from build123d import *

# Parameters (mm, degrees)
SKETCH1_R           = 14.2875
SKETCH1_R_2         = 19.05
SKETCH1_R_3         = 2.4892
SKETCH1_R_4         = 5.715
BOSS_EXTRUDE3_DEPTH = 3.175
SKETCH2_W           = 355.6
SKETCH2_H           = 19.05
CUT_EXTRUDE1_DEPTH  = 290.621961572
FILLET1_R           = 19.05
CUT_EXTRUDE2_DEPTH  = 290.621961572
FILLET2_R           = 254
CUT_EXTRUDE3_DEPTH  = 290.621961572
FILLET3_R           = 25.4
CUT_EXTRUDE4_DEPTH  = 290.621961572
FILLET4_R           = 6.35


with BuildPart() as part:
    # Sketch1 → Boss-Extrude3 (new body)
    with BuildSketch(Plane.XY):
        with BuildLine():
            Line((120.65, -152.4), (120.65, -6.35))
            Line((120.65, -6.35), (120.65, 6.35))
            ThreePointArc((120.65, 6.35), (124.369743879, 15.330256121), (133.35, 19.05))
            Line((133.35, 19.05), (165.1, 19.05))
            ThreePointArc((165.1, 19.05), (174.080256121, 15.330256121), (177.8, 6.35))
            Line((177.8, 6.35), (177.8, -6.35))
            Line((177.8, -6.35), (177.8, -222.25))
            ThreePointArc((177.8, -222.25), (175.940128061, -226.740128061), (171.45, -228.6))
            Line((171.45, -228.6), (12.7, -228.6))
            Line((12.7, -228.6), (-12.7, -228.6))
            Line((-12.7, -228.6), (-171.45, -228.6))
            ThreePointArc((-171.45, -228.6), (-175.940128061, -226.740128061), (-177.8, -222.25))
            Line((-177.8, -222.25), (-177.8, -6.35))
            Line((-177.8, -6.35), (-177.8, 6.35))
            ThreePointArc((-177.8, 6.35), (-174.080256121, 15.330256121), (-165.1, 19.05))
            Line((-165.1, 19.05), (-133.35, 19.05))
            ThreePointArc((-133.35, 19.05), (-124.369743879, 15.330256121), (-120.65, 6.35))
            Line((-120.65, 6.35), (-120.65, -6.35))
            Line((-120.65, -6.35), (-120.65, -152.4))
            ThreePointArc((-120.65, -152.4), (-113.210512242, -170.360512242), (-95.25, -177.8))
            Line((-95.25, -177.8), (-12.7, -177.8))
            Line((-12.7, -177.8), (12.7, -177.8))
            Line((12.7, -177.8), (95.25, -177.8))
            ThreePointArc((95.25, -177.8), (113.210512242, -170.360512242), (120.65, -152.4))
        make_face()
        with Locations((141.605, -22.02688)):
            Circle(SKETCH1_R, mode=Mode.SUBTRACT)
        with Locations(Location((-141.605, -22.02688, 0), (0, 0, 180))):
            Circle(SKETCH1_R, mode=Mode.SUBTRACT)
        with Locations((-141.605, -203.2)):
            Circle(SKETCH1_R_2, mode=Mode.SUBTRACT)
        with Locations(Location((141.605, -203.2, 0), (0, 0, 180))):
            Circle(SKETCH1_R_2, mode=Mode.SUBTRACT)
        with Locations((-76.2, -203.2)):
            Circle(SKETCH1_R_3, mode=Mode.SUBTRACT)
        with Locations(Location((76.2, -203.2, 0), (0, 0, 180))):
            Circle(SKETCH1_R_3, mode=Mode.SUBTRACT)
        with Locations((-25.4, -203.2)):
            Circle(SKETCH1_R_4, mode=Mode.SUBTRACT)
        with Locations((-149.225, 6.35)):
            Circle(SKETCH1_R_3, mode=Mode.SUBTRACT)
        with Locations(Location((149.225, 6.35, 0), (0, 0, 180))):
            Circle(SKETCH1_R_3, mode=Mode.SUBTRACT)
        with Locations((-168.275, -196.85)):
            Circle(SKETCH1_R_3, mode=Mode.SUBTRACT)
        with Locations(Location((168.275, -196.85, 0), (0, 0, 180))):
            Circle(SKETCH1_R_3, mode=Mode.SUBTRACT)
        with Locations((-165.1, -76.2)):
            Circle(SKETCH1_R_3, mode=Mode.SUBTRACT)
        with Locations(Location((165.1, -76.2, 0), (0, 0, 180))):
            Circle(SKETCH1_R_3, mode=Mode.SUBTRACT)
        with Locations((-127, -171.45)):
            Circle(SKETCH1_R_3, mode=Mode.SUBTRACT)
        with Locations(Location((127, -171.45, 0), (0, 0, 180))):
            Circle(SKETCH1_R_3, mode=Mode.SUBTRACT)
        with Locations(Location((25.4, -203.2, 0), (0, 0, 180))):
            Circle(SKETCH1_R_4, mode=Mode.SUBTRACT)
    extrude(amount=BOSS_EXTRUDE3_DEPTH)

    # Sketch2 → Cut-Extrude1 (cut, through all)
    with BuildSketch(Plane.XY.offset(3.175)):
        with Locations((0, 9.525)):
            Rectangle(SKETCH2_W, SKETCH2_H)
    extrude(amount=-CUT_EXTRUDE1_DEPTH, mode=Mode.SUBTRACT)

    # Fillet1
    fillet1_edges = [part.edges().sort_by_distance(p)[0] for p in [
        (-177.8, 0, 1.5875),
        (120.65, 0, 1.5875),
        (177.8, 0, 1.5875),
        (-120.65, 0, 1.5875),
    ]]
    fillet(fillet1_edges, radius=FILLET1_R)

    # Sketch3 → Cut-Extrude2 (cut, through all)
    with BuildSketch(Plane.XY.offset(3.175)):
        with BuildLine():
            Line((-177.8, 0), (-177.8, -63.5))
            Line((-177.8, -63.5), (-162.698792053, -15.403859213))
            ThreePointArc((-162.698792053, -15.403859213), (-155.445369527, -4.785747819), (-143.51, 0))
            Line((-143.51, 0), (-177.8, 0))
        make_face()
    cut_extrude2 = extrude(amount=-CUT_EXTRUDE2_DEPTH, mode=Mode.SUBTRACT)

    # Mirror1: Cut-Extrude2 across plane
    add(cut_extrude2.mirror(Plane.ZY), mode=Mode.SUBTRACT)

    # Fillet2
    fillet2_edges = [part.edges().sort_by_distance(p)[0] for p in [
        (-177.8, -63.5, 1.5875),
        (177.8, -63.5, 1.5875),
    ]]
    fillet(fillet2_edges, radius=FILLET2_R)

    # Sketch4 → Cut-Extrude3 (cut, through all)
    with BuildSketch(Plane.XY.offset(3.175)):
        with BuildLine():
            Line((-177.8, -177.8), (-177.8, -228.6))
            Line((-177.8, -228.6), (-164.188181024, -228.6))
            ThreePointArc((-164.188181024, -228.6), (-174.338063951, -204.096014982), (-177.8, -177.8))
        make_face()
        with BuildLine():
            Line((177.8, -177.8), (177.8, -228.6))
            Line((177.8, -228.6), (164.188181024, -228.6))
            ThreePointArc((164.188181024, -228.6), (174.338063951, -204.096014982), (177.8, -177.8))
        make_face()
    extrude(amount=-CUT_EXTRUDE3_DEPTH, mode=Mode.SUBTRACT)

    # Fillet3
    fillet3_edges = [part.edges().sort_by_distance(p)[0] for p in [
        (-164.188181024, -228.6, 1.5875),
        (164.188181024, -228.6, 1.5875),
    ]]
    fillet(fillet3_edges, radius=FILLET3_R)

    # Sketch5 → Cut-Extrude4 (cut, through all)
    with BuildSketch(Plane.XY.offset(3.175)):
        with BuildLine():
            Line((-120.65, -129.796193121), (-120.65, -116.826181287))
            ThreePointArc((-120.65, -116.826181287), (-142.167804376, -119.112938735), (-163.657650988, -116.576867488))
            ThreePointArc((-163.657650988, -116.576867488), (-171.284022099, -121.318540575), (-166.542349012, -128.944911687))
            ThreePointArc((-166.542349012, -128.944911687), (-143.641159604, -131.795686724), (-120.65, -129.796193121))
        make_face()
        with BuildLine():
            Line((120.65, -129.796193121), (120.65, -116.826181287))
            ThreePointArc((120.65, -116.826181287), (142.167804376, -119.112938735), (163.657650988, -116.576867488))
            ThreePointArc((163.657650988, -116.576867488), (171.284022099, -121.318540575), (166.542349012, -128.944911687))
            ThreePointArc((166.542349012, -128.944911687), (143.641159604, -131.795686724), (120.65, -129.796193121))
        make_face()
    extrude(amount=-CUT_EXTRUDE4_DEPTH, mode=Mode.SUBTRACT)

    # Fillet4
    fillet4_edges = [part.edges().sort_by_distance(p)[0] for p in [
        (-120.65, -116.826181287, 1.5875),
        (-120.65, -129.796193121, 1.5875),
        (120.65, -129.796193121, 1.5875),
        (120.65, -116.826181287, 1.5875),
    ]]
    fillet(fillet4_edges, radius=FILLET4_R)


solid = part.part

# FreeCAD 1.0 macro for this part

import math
import FreeCAD as App
import Part
import Sketcher
Q = App.Units.Quantity


def edges_at(feature, points):
    """Names of the edges that pass closest to the given points."""
    edges = feature.Shape.Edges
    near = lambda p: min(range(len(edges)), key=lambda i: edges[i].distToShape(Part.Vertex(*p))[0])
    return sorted({f"Edge{near(p) + 1}" for p in points})


def add_polygon(sketch, points):
    """Adds a closed chain of lines whose ends are joined by coincident constraints."""
    first, n = sketch.GeometryCount, len(points)
    for a, b in zip(points, points[1:] + points[:1]):
        sketch.addGeometry(Part.LineSegment(App.Vector(*a, 0), App.Vector(*b, 0)), False)
    for i in range(n):
        sketch.addConstraint(Sketcher.Constraint("Coincident", first + i, 2, first + (i + 1) % n, 1))

doc = App.newDocument("Part")
body = doc.addObject("PartDesign::Body", "Body")

sketch1 = body.newObject("Sketcher::SketchObject", "Sketch")
sketch1.AttachmentSupport = (doc.getObject("XY_Plane"), [""])
sketch1.MapMode = "FlatFace"
sketch1.addGeometry([
    Part.LineSegment(App.Vector(120.7, 6.3, 0), App.Vector(120.7, -152.4, 0)),
    Part.ArcOfCircle(Part.Circle(App.Vector(95.2, -152.4, 0), App.Vector(0, 0, 1), 25.4), math.radians(-90), math.radians(0)),
    Part.LineSegment(App.Vector(95.2, -177.8, 0), App.Vector(-95.2, -177.8, 0)),
    Part.ArcOfCircle(Part.Circle(App.Vector(-95.2, -152.4, 0), App.Vector(0, 0, 1), 25.4), math.radians(180), math.radians(270)),
    Part.LineSegment(App.Vector(-120.7, -152.4, 0), App.Vector(-120.7, 6.3, 0)),
    Part.ArcOfCircle(Part.Circle(App.Vector(-133.3, 6.3, 0), App.Vector(0, 0, 1), 12.7), math.radians(0), math.radians(90)),
    Part.LineSegment(App.Vector(-133.3, 19.1, 0), App.Vector(-165.1, 19.1, 0)),
    Part.ArcOfCircle(Part.Circle(App.Vector(-165.1, 6.3, 0), App.Vector(0, 0, 1), 12.7), math.radians(90), math.radians(180)),
    Part.LineSegment(App.Vector(-177.8, 6.3, 0), App.Vector(-177.8, -222.2, 0)),
    Part.ArcOfCircle(Part.Circle(App.Vector(-171.5, -222.3, 0), App.Vector(0, 0, 1), 6.3), math.radians(180), math.radians(270)),
    Part.LineSegment(App.Vector(-171.4, -228.6, 0), App.Vector(171.4, -228.6, 0)),
    Part.ArcOfCircle(Part.Circle(App.Vector(171.5, -222.3, 0), App.Vector(0, 0, 1), 6.3), math.radians(-90), math.radians(0)),
    Part.LineSegment(App.Vector(177.8, -222.2, 0), App.Vector(177.8, 6.3, 0)),
    Part.ArcOfCircle(Part.Circle(App.Vector(165.1, 6.3, 0), App.Vector(0, 0, 1), 12.7), math.radians(0), math.radians(90)),
    Part.LineSegment(App.Vector(165.1, 19.1, 0), App.Vector(133.3, 19.1, 0)),
    Part.ArcOfCircle(Part.Circle(App.Vector(133.3, 6.3, 0), App.Vector(0, 0, 1), 12.7), math.radians(90), math.radians(180)),
    Part.Circle(App.Vector(168.3, -196.8, 0), App.Vector(0, 0, 1), 2.5),
    Part.Circle(App.Vector(141.6, -203.2, 0), App.Vector(0, 0, 1), 19.1),
    Part.Circle(App.Vector(127, -171.4, 0), App.Vector(0, 0, 1), 2.5),
    Part.Circle(App.Vector(76.2, -203.2, 0), App.Vector(0, 0, 1), 2.5),
    Part.Circle(App.Vector(25.4, -203.2, 0), App.Vector(0, 0, 1), 5.7),
    Part.Circle(App.Vector(-25.4, -203.2, 0), App.Vector(0, 0, 1), 5.7),
    Part.Circle(App.Vector(-76.2, -203.2, 0), App.Vector(0, 0, 1), 2.5),
    Part.Circle(App.Vector(-141.6, -203.2, 0), App.Vector(0, 0, 1), 19.1),
    Part.Circle(App.Vector(-168.3, -196.8, 0), App.Vector(0, 0, 1), 2.5),
    Part.Circle(App.Vector(-127, -171.4, 0), App.Vector(0, 0, 1), 2.5),
    Part.Circle(App.Vector(165.1, -76.2, 0), App.Vector(0, 0, 1), 2.5),
    Part.Circle(App.Vector(141.6, -22, 0), App.Vector(0, 0, 1), 14.3),
    Part.Circle(App.Vector(149.2, 6.3, 0), App.Vector(0, 0, 1), 2.5),
    Part.Circle(App.Vector(-165.1, -76.2, 0), App.Vector(0, 0, 1), 2.5),
    Part.Circle(App.Vector(-141.6, -22, 0), App.Vector(0, 0, 1), 14.3),
    Part.Circle(App.Vector(-149.2, 6.3, 0), App.Vector(0, 0, 1), 2.5),
], False)
sketch1.addConstraint([
    Sketcher.Constraint("Tangent", 0, 2, 1, 2),
    Sketcher.Constraint("Tangent", 1, 1, 2, 1),
    Sketcher.Constraint("Tangent", 2, 2, 3, 2),
    Sketcher.Constraint("Tangent", 3, 1, 4, 1),
    Sketcher.Constraint("Tangent", 4, 2, 5, 1),
    Sketcher.Constraint("Tangent", 5, 2, 6, 1),
    Sketcher.Constraint("Tangent", 6, 2, 7, 1),
    Sketcher.Constraint("Tangent", 7, 2, 8, 1),
    Sketcher.Constraint("Tangent", 8, 2, 9, 1),
    Sketcher.Constraint("Tangent", 9, 2, 10, 1),
    Sketcher.Constraint("Tangent", 10, 2, 11, 1),
    Sketcher.Constraint("Tangent", 11, 2, 12, 1),
    Sketcher.Constraint("Tangent", 12, 2, 13, 1),
    Sketcher.Constraint("Tangent", 13, 2, 14, 1),
    Sketcher.Constraint("Tangent", 14, 2, 15, 1),
    Sketcher.Constraint("Tangent", 15, 2, 0, 1),
    Sketcher.Constraint("Vertical", 0),
    Sketcher.Constraint("Horizontal", 2),
    Sketcher.Constraint("Vertical", 4),
    Sketcher.Constraint("Horizontal", 6),
    Sketcher.Constraint("Vertical", 8),
    Sketcher.Constraint("Horizontal", 10),
    Sketcher.Constraint("Vertical", 12),
    Sketcher.Constraint("Horizontal", 14),
    Sketcher.Constraint("Equal", 1, 3),
    Sketcher.Constraint("Equal", 5, 7),
    Sketcher.Constraint("Equal", 9, 11),
    Sketcher.Constraint("Equal", 7, 13),
    Sketcher.Constraint("Equal", 13, 15),
    Sketcher.Constraint("Equal", 16, 18),
    Sketcher.Constraint("Equal", 18, 19),
    Sketcher.Constraint("Equal", 20, 21),
    Sketcher.Constraint("Equal", 19, 22),
    Sketcher.Constraint("Equal", 17, 23),
    Sketcher.Constraint("Equal", 22, 24),
    Sketcher.Constraint("Equal", 24, 25),
    Sketcher.Constraint("Equal", 25, 26),
    Sketcher.Constraint("Equal", 26, 28),
    Sketcher.Constraint("Equal", 28, 29),
    Sketcher.Constraint("Equal", 27, 30),
    Sketcher.Constraint("Equal", 29, 31),
    Sketcher.Constraint("Symmetric", 7, 3, 13, 3, -2),
    Sketcher.Constraint("Symmetric", 20, 3, 21, 3, -2),
    Sketcher.Constraint("Symmetric", 19, 3, 22, 3, -2),
    Sketcher.Constraint("Symmetric", 17, 3, 23, 3, -2),
    Sketcher.Constraint("Symmetric", 16, 3, 24, 3, -2),
    Sketcher.Constraint("Symmetric", 18, 3, 25, 3, -2),
    Sketcher.Constraint("Symmetric", 26, 3, 29, 3, -2),
    Sketcher.Constraint("Symmetric", 27, 3, 30, 3, -2),
    Sketcher.Constraint("Symmetric", 28, 3, 31, 3, -2),
    Sketcher.Constraint("Horizontal", 17, 3, 19, 3),
    Sketcher.Constraint("Horizontal", 19, 3, 20, 3),
    Sketcher.Constraint("Horizontal", 15, 3, 28, 3),
    Sketcher.Constraint("Vertical", 13, 3, 26, 3),
    Sketcher.Constraint("Vertical", 17, 3, 27, 3),
    Sketcher.Constraint("Equal", 6, 14),
    Sketcher.Constraint("Radius", 1, Q("1 in")),
    Sketcher.Constraint("Diameter", 17, Q("1.5 in")),
    Sketcher.Constraint("Radius", 5, Q("0.5 in")),
    Sketcher.Constraint("Diameter", 20, Q("0.45 in")),
    Sketcher.Constraint("DistanceY", 8, 2, 8, 1, Q("9 in")),
    Sketcher.Constraint("Radius", 9, Q("0.25 in")),
    Sketcher.Constraint("Diameter", 16, Q("0.196 in")),
    Sketcher.Constraint("Diameter", 27, Q("1.125 in")),
    Sketcher.Constraint("DistanceX", 2, 2, 2, 1, Q("7.5 in")),
    Sketcher.Constraint("DistanceX", 10, 1, 10, 2, Q("13.5 in")),
    Sketcher.Constraint("DistanceY", 1, 3, -1, 1, Q("6 in")),
    Sketcher.Constraint("DistanceY", 17, 3, -1, 1, Q("8 in")),
    Sketcher.Constraint("DistanceX", -1, 1, 18, 3, Q("5 in")),
    Sketcher.Constraint("DistanceX", -1, 1, 19, 3, Q("3 in")),
    Sketcher.Constraint("DistanceX", -1, 1, 20, 3, Q("1 in")),
    Sketcher.Constraint("DistanceY", 26, 3, -1, 1, Q("3 in")),
    Sketcher.Constraint("DistanceY", 9, 2, -1, 1, Q("9 in")),
    Sketcher.Constraint("DistanceY", 11, 3, 16, 3, Q("1 in")),
    Sketcher.Constraint("DistanceY", 16, 3, 18, 3, Q("1 in")),
    Sketcher.Constraint("DistanceX", 27, 3, 28, 3, Q("0.3 in")),
    Sketcher.Constraint("DistanceX", 17, 3, 16, 3, Q("1.05 in")),
    Sketcher.Constraint("DistanceX", -1, 1, 16, 3, Q("6.625 in")),
    Sketcher.Constraint("DistanceY", 27, 3, -1, 1, Q("0.8672 in")),
])
pad1 = body.newObject("PartDesign::Pad", "Pad")
pad1.Profile = sketch1
pad1.Length = Q("0.125 in")

sketch2 = body.newObject("Sketcher::SketchObject", "Sketch001")
sketch2.AttachmentSupport = (doc.getObject("XY_Plane"), [""])
sketch2.MapMode = "FlatFace"
sketch2.AttachmentOffset = App.Placement(App.Vector(0, 0, 0.125 * 25.4), App.Rotation())
add_polygon(sketch2, [(-178, 19), (-178, 0), (178, 0), (178, 19)])
sketch2.addConstraint([
    Sketcher.Constraint("Vertical", 0),
    Sketcher.Constraint("Horizontal", 1),
    Sketcher.Constraint("Vertical", 2),
    Sketcher.Constraint("Horizontal", 3),
    Sketcher.Constraint("Symmetric", 0, 2, 1, 2, -1, 1),
    Sketcher.Constraint("DistanceX", 1, 1, 1, 2, Q("14 in")),
    Sketcher.Constraint("DistanceY", 0, 2, 0, 1, Q("0.75 in")),
])
pocket1 = body.newObject("PartDesign::Pocket", "Pocket")
pocket1.Profile = sketch2
pocket1.Type = "ThroughAll"
doc.recompute()

fillet = body.newObject("PartDesign::Fillet", "Fillet")
fillet.Base = (pocket1, edges_at(pocket1, [
    (-177.8, 0, 1.587),
    (120.65, 0, 1.587),
    (177.8, 0, 1.587),
    (-120.65, 0, 1.587),
]))
fillet.Radius = Q("0.75 in")

sketch3 = body.newObject("Sketcher::SketchObject", "Sketch002")
sketch3.AttachmentSupport = (doc.getObject("XY_Plane"), [""])
sketch3.MapMode = "FlatFace"
sketch3.AttachmentOffset = App.Placement(App.Vector(0, 0, 0.125 * 25.4), App.Rotation())
sketch3.addGeometry([
    Part.LineSegment(App.Vector(-178, 0, 0), App.Vector(-178, -64, 0)),
    Part.LineSegment(App.Vector(-178, -64, 0), App.Vector(-163, -15, 0)),
    Part.ArcOfCircle(Part.Circle(App.Vector(-142, -22, 0), App.Vector(0, 0, 1), 22), math.radians(95), math.radians(163)),
    Part.LineSegment(App.Vector(-144, 0, 0), App.Vector(-178, 0, 0)),
], False)
sketch3.addConstraint([
    Sketcher.Constraint("Coincident", 0, 2, 1, 1),
    Sketcher.Constraint("Tangent", 1, 2, 2, 2),
    Sketcher.Constraint("Coincident", 2, 1, 3, 1),
    Sketcher.Constraint("Coincident", 3, 2, 0, 1),
    Sketcher.Constraint("Vertical", 0),
    Sketcher.Constraint("Horizontal", 3),
    Sketcher.Constraint("PointOnObject", 2, 1, -1),
    Sketcher.Constraint("DistanceY", 0, 2, 0, 1, Q("2.5 in")),
    Sketcher.Constraint("DistanceX", 0, 2, -1, 1, Q("7 in")),
    Sketcher.Constraint("DistanceX", 3, 2, 3, 1, Q("1.35 in")),
    Sketcher.Constraint("DistanceX", 2, 3, -1, 1, Q("5.575 in")),
    Sketcher.Constraint("DistanceY", 2, 3, -1, 1, Q("0.8672 in")),
])
pocket2 = body.newObject("PartDesign::Pocket", "Pocket001")
pocket2.Profile = sketch3
pocket2.Type = "ThroughAll"
doc.recompute()

mirrored = body.newObject("PartDesign::Mirrored", "Mirrored")
mirrored.Originals = [pocket2]
mirrored.MirrorPlane = (doc.getObject("YZ_Plane"), [""])
body.Tip = mirrored
doc.recompute()

fillet2 = body.newObject("PartDesign::Fillet", "Fillet001")
fillet2.Base = (mirrored, edges_at(mirrored, [(-177.8, -63.5, 1.587), (177.8, -63.5, 1.587)]))
fillet2.Radius = Q("10 in")

sketch4 = body.newObject("Sketcher::SketchObject", "Sketch003")
sketch4.AttachmentSupport = (doc.getObject("XY_Plane"), [""])
sketch4.MapMode = "FlatFace"
sketch4.AttachmentOffset = App.Placement(App.Vector(0, 0, 0.125 * 25.4), App.Rotation())
sketch4.addGeometry([
    Part.LineSegment(App.Vector(-178, -178, 0), App.Vector(-178, -229, 0)),
    Part.LineSegment(App.Vector(-178, -229, 0), App.Vector(-164, -229, 0)),
    Part.ArcOfCircle(Part.Circle(App.Vector(-76, -178, 0), App.Vector(0, 0, 1), 102), math.radians(180), math.radians(210)),
    Part.LineSegment(App.Vector(178, -229, 0), App.Vector(178, -178, 0)),
    Part.ArcOfCircle(Part.Circle(App.Vector(76, -178, 0), App.Vector(0, 0, 1), 102), math.radians(-30), math.radians(0)),
    Part.LineSegment(App.Vector(164, -229, 0), App.Vector(178, -229, 0)),
], False)
sketch4.addConstraint([
    Sketcher.Constraint("Coincident", 0, 2, 1, 1),
    Sketcher.Constraint("Coincident", 1, 2, 2, 2),
    Sketcher.Constraint("Tangent", 2, 1, 0, 1),
    Sketcher.Constraint("Tangent", 3, 2, 4, 2),
    Sketcher.Constraint("Coincident", 4, 1, 5, 1),
    Sketcher.Constraint("Coincident", 5, 2, 3, 1),
    Sketcher.Constraint("Vertical", 0),
    Sketcher.Constraint("Horizontal", 1),
    Sketcher.Constraint("Vertical", 3),
    Sketcher.Constraint("Horizontal", 5),
    Sketcher.Constraint("Equal", 2, 4),
    Sketcher.Constraint("Symmetric", 2, 3, 4, 3, -2),
    Sketcher.Constraint("Horizontal", 1, 2, 4, 1),
    Sketcher.Constraint("Radius", 2, Q("4 in")),
    Sketcher.Constraint("DistanceY", 0, 2, 0, 1, Q("2 in")),
    Sketcher.Constraint("DistanceX", 2, 3, -1, 1, Q("3 in")),
    Sketcher.Constraint("DistanceY", 2, 3, -1, 1, Q("7 in")),
])
pocket3 = body.newObject("PartDesign::Pocket", "Pocket002")
pocket3.Profile = sketch4
pocket3.Type = "ThroughAll"
doc.recompute()

fillet3 = body.newObject("PartDesign::Fillet", "Fillet002")
fillet3.Base = (pocket3, edges_at(pocket3, [(-164.188, -228.6, 1.587), (164.188, -228.6, 1.587)]))
fillet3.Radius = Q("1 in")

sketch5 = body.newObject("Sketcher::SketchObject", "Sketch004")
sketch5.AttachmentSupport = (doc.getObject("XY_Plane"), [""])
sketch5.MapMode = "FlatFace"
sketch5.AttachmentOffset = App.Placement(App.Vector(0, 0, 0.125 * 25.4), App.Rotation())
sketch5.addGeometry([
    Part.LineSegment(App.Vector(-121, -130, 0), App.Vector(-121, -117, 0)),
    Part.ArcOfCircle(Part.Circle(App.Vector(-142, -22, 0), App.Vector(0, 0, 1), 97), math.radians(-103), math.radians(-78)),
    Part.ArcOfCircle(Part.Circle(App.Vector(-165, -123, 0), App.Vector(0, 0, 1), 6), math.radians(77), math.radians(257)),
    Part.ArcOfCircle(Part.Circle(App.Vector(-142, -22, 0), App.Vector(0, 0, 1), 110), math.radians(-103), math.radians(-79)),
    Part.LineSegment(App.Vector(121, -117, 0), App.Vector(121, -130, 0)),
    Part.ArcOfCircle(Part.Circle(App.Vector(142, -22, 0), App.Vector(0, 0, 1), 110), math.radians(-101), math.radians(-77)),
    Part.ArcOfCircle(Part.Circle(App.Vector(165, -123, 0), App.Vector(0, 0, 1), 6), math.radians(-77), math.radians(103)),
    Part.ArcOfCircle(Part.Circle(App.Vector(142, -22, 0), App.Vector(0, 0, 1), 97), math.radians(-102), math.radians(-77)),
], False)
sketch5.addConstraint([
    Sketcher.Constraint("Coincident", 0, 2, 1, 2),
    Sketcher.Constraint("Tangent", 1, 1, 2, 1),
    Sketcher.Constraint("Tangent", 2, 2, 3, 1),
    Sketcher.Constraint("Coincident", 3, 2, 0, 1),
    Sketcher.Constraint("Coincident", 4, 2, 5, 1),
    Sketcher.Constraint("Tangent", 5, 2, 6, 1),
    Sketcher.Constraint("Tangent", 6, 2, 7, 2),
    Sketcher.Constraint("Coincident", 7, 1, 4, 1),
    Sketcher.Constraint("Vertical", 0),
    Sketcher.Constraint("Vertical", 4),
    Sketcher.Constraint("Coincident", 3, 3, 1, 3),
    Sketcher.Constraint("Coincident", 7, 3, 5, 3),
    Sketcher.Constraint("Equal", 3, 5),
    Sketcher.Constraint("Equal", 2, 6),
    Sketcher.Constraint("Symmetric", 1, 3, 5, 3, -2),
    Sketcher.Constraint("Horizontal", 2, 3, 6, 3),
    Sketcher.Constraint("Horizontal", 3, 2, 4, 2),
    Sketcher.Constraint("Radius", 2, Q("0.25 in")),
    Sketcher.Constraint("DistanceX", 2, 3, 6, 3, Q("13 in")),
    Sketcher.Constraint("DistanceX", 3, 2, 4, 2, Q("9.5 in")),
    Sketcher.Constraint("DistanceX", 3, 3, 5, 3, Q("11.15 in")),
    Sketcher.Constraint("Radius", 1, Q("97.08769 mm")),
    Sketcher.Constraint("DistanceY", 1, 3, -1, 1, Q("0.8672 in")),
])
pocket4 = body.newObject("PartDesign::Pocket", "Pocket003")
pocket4.Profile = sketch5
pocket4.Type = "ThroughAll"
doc.recompute()

fillet4 = body.newObject("PartDesign::Fillet", "Fillet003")
fillet4.Base = (pocket4, edges_at(pocket4, [
    (-120.65, -116.826, 1.587),
    (-120.65, -129.796, 1.587),
    (120.65, -129.796, 1.587),
    (120.65, -116.826, 1.587),
]))
fillet4.Radius = Q("0.25 in")

doc.recompute()
